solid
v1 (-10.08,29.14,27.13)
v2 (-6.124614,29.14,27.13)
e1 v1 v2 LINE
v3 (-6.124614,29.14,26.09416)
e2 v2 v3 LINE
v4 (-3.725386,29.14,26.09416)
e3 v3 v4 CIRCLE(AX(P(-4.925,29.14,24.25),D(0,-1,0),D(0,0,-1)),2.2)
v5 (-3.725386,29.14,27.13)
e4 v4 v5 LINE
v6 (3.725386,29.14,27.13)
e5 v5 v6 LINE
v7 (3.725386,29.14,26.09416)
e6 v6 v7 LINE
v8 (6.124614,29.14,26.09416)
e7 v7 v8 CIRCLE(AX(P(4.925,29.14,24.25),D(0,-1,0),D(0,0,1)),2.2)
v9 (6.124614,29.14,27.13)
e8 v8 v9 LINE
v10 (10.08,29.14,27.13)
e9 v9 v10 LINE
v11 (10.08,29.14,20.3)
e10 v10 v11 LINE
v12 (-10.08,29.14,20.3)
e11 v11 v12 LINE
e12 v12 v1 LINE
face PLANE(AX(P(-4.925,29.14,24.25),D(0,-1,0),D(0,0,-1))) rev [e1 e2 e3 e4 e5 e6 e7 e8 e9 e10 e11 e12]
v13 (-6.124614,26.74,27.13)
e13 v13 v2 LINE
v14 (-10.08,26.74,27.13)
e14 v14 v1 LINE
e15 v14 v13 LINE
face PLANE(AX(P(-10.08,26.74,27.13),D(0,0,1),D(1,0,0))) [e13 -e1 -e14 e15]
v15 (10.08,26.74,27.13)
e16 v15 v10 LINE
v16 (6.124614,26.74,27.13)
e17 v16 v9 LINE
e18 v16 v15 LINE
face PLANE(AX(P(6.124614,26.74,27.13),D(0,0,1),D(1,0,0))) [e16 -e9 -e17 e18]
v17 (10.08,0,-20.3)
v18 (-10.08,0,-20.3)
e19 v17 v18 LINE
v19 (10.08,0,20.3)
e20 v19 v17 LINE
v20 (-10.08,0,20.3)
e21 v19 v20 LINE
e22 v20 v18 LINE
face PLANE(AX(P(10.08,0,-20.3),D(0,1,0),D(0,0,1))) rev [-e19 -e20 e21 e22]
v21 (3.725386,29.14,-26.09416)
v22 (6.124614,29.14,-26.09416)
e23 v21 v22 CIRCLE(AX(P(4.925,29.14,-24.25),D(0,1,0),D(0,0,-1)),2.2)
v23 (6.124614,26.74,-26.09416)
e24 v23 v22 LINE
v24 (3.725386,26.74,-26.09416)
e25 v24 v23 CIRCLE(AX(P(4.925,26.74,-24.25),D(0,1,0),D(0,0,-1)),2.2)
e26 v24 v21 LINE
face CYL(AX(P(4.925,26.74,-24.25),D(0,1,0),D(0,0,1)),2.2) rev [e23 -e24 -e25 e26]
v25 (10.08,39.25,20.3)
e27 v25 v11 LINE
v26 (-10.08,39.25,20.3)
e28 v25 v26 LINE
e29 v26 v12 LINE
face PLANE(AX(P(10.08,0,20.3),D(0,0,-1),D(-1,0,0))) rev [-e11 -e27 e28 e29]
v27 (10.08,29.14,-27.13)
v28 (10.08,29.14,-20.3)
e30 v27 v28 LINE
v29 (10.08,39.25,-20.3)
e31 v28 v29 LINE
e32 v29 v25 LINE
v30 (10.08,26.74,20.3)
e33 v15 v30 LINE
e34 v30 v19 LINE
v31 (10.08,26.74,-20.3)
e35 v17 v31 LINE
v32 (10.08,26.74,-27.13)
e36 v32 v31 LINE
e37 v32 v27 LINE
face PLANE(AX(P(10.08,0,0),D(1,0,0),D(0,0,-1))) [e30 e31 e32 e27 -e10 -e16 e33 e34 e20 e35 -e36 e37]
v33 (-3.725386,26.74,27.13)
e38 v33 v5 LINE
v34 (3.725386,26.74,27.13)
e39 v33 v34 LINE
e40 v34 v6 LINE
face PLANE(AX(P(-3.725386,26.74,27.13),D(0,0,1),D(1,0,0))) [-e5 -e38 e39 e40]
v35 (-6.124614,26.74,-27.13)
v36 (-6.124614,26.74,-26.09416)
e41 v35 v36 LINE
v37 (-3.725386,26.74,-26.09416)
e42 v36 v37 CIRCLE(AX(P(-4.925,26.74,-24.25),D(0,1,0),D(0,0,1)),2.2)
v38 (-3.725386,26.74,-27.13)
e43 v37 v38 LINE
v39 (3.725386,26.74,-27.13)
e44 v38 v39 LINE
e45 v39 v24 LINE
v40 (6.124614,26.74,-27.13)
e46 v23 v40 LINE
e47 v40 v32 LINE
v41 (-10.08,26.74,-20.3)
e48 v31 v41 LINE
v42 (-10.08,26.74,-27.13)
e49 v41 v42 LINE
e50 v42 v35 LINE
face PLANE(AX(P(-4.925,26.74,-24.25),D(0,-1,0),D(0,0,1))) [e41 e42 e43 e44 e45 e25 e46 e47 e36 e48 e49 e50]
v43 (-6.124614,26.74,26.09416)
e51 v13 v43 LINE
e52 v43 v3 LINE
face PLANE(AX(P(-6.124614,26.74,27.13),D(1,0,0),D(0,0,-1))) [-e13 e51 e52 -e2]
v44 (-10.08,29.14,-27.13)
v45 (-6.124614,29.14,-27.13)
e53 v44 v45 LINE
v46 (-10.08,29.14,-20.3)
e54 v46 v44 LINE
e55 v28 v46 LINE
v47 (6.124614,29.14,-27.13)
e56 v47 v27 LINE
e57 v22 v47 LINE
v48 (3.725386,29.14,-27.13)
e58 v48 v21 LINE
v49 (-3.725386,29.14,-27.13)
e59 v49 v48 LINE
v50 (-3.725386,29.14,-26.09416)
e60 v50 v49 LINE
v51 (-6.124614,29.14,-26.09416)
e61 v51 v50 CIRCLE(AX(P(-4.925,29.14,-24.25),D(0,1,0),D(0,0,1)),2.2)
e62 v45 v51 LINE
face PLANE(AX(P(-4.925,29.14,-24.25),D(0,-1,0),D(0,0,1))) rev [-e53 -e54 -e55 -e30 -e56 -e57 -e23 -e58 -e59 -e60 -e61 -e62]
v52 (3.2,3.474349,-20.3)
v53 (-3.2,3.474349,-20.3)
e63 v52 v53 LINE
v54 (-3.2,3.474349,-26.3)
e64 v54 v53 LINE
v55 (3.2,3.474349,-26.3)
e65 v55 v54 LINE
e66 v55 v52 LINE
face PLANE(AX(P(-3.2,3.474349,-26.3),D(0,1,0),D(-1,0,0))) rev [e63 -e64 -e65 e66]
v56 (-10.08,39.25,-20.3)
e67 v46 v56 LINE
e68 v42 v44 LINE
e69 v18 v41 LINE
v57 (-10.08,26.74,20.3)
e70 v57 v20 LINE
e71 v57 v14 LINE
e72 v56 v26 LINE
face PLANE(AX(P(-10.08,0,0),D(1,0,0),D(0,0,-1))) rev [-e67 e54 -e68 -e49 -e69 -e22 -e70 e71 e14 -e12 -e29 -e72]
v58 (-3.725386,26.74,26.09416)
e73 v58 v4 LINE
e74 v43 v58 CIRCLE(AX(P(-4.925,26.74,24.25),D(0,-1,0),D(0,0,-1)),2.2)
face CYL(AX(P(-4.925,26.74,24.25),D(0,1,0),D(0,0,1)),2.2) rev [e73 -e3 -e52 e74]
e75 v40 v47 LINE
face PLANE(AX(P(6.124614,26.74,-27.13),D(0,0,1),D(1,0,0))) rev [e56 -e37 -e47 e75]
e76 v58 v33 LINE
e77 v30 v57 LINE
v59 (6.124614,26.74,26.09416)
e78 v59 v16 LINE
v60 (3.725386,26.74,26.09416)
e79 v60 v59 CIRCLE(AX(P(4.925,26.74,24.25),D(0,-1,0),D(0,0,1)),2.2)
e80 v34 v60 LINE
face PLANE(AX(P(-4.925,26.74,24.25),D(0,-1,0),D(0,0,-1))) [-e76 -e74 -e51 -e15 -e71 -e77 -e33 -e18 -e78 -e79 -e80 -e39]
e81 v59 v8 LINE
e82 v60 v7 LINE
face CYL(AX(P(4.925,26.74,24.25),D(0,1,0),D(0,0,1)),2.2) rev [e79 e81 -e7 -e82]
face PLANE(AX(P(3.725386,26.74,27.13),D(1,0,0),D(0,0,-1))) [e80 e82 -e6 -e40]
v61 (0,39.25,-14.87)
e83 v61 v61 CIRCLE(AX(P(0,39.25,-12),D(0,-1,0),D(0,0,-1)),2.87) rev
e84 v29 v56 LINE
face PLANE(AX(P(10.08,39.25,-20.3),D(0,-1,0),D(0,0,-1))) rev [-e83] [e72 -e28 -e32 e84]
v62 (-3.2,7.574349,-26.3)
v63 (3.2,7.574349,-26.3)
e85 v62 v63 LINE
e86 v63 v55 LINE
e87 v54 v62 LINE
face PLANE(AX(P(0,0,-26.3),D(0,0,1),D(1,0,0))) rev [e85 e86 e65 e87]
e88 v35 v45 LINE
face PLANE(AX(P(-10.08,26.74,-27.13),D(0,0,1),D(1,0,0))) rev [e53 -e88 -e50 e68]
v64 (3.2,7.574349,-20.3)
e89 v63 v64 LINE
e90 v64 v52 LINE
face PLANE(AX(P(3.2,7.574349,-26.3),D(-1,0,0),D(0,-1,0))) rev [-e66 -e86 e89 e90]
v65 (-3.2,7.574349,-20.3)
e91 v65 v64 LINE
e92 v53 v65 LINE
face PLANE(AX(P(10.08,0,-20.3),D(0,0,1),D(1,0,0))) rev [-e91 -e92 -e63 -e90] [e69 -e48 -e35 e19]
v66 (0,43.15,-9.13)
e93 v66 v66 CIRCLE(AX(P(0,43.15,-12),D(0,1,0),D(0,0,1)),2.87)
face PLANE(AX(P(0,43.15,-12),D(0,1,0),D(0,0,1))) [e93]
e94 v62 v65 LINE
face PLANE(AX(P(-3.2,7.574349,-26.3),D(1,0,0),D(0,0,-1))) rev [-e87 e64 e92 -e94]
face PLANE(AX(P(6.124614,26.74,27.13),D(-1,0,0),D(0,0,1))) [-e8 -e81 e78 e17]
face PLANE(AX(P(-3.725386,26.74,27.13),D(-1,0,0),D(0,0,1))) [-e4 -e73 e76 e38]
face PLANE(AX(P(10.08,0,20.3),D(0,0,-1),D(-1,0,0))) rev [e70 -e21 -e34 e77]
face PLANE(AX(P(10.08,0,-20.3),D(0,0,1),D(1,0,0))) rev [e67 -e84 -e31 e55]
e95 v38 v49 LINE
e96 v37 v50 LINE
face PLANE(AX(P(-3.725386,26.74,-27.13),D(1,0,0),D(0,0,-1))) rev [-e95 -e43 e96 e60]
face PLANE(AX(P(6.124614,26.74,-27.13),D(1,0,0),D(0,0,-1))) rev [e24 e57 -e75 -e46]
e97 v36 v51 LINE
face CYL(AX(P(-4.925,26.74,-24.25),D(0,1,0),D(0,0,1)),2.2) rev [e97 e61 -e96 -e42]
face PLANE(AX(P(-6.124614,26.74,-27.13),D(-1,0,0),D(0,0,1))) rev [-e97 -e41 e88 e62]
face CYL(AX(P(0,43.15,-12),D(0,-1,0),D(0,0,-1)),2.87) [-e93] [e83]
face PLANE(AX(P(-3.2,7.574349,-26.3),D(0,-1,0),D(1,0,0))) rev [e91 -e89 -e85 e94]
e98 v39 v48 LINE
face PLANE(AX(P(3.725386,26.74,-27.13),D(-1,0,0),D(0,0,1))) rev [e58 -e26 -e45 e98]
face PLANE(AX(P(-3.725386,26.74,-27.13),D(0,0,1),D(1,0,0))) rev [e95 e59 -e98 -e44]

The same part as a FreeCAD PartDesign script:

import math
import FreeCAD as App
import Part
import Sketcher


def add_polygon(sketch, points):
    """Adds a closed chain of lines whose ends are joined by coincident constraints."""
    first, n = sketch.GeometryCount, len(points)
    for a, b in zip(points, points[1:] + points[:1]):
        sketch.addGeometry(Part.LineSegment(App.Vector(*a, 0), App.Vector(*b, 0)), False)
    for i in range(n):
        sketch.addConstraint(Sketcher.Constraint("Coincident", first + i, 2, first + (i + 1) % n, 1))

doc = App.newDocument("Part")
params = doc.addObject("Spreadsheet::Sheet", "Params")
for row, (alias, value) in enumerate([
    ("sketch1_height", "40.6 mm"),
    ("sketch1_width", "39.25 mm"),
    ("pad1_length", "20.16 mm"),
    ("sketch2_radius", "2.2 mm"),
    ("sketch2_width", "20.16 mm"),
    ("sketch2_height", "6.83 mm"),
    ("pad2_length", "2.4 mm"),
    ("sketch3_width", "6.4 mm"),
    ("sketch3_height", "4.1 mm"),
    ("pad3_length", "6 mm"),
    ("sketch4_diameter", "5.74 mm"),
    ("pad4_length", "3.9 mm"),
], start=1):
    params.set(f"A{row}", alias)
    params.set(f"B{row}", "=" + value)
    params.setAlias(f"B{row}", alias)

body = doc.addObject("PartDesign::Body", "Body")

# Sketch on YZ plane
sketch1 = doc.addObject("Sketcher::SketchObject", "Sketch")
body.addObject(sketch1)
sketch1.AttachmentSupport = (doc.YZ_Plane, [""])
sketch1.MapMode = "FlatFace"
add_polygon(sketch1, [(39.25, 20.3), (0, 20.3), (0, -20.3), (39.25, -20.3)])  # lines 0-3
sketch1.addConstraint([
    Sketcher.Constraint("Horizontal", 0),
    Sketcher.Constraint("Vertical", 1),
    Sketcher.Constraint("Horizontal", 2),
    Sketcher.Constraint("Vertical", 3),
    Sketcher.Constraint("Symmetric", 0, 2, 1, 2, -1, 1),
    Sketcher.Constraint("DistanceY", 1, 2, 1, 1, 40.6),
    Sketcher.Constraint("DistanceX", 0, 2, 0, 1, 39.25),
])
sketch1.setExpression("Constraints[9]", "Params.sketch1_height")
sketch1.setExpression("Constraints[10]", "Params.sketch1_width")
pad1 = doc.addObject("PartDesign::Pad", "Pad")
body.addObject(pad1)
pad1.Profile = sketch1
pad1.setExpression("Length", "Params.pad1_length")
pad1.Midplane = True

# Sketch on XZ plane
sketch2 = doc.addObject("Sketcher::SketchObject", "Sketch001")
body.addObject(sketch2)
sketch2.AttachmentSupport = (doc.XZ_Plane, [""])
sketch2.MapMode = "FlatFace"
sketch2.AttachmentOffset = App.Placement(App.Vector(0, 0, -29.14), App.Rotation())
sketch2.addGeometry([
    Part.LineSegment(App.Vector(10.08, 20.3, 0), App.Vector(-10.08, 20.3, 0)),  # 0
    Part.LineSegment(App.Vector(-10.08, 20.3, 0), App.Vector(-10.08, 27.13, 0)),  # 1
    Part.LineSegment(App.Vector(-10.08, 27.13, 0), App.Vector(-6.124614, 27.13, 0)),  # 2
    Part.LineSegment(App.Vector(-6.124614, 27.13, 0), App.Vector(-6.124614, 26.09416, 0)),  # 3
    Part.ArcOfCircle(Part.Circle(App.Vector(-4.925, 24.25, 0), App.Vector(0, 0, 1), 2.2), math.radians(123.043726), math.radians(416.956274)),  # 4
    Part.LineSegment(App.Vector(-3.725386, 26.09416, 0), App.Vector(-3.725386, 27.13, 0)),  # 5
    Part.LineSegment(App.Vector(-3.725386, 27.13, 0), App.Vector(3.725386, 27.13, 0)),  # 6
    Part.LineSegment(App.Vector(3.725386, 27.13, 0), App.Vector(3.725386, 26.09416, 0)),  # 7
    Part.ArcOfCircle(Part.Circle(App.Vector(4.925, 24.25, 0), App.Vector(0, 0, 1), 2.2), math.radians(123.043726), math.radians(416.956274)),  # 8
    Part.LineSegment(App.Vector(6.124614, 26.09416, 0), App.Vector(6.124614, 27.13, 0)),  # 9
    Part.LineSegment(App.Vector(6.124614, 27.13, 0), App.Vector(10.08, 27.13, 0)),  # 10
    Part.LineSegment(App.Vector(10.08, 27.13, 0), App.Vector(10.08, 20.3, 0)),  # 11
], False)
sketch2.addConstraint([
    Sketcher.Constraint("Coincident", 0, 2, 1, 1),
    Sketcher.Constraint("Coincident", 1, 2, 2, 1),
    Sketcher.Constraint("Coincident", 2, 2, 3, 1),
    Sketcher.Constraint("Coincident", 3, 2, 4, 1),
    Sketcher.Constraint("Coincident", 4, 2, 5, 1),
    Sketcher.Constraint("Coincident", 5, 2, 6, 1),
    Sketcher.Constraint("Coincident", 6, 2, 7, 1),
    Sketcher.Constraint("Coincident", 7, 2, 8, 1),
    Sketcher.Constraint("Coincident", 8, 2, 9, 1),
    Sketcher.Constraint("Coincident", 9, 2, 10, 1),
    Sketcher.Constraint("Coincident", 10, 2, 11, 1),
    Sketcher.Constraint("Coincident", 11, 2, 0, 1),
    Sketcher.Constraint("Horizontal", 0),
    Sketcher.Constraint("Vertical", 1),
    Sketcher.Constraint("Horizontal", 2),
    Sketcher.Constraint("Vertical", 3),
    Sketcher.Constraint("Vertical", 5),
    Sketcher.Constraint("Horizontal", 6),
    Sketcher.Constraint("Vertical", 7),
    Sketcher.Constraint("Vertical", 9),
    Sketcher.Constraint("Horizontal", 10),
    Sketcher.Constraint("Vertical", 11),
    Sketcher.Constraint("Equal", 4, 8),
    Sketcher.Constraint("Symmetric", 4, 3, 8, 3, -2),
    Sketcher.Constraint("Symmetric", 2, 2, 9, 2, -2),
    Sketcher.Constraint("Horizontal", 3, 2, 4, 2),
    Sketcher.Constraint("Horizontal", 2, 2, 5, 2),
    Sketcher.Constraint("Horizontal", 4, 2, 7, 2),
    Sketcher.Constraint("Equal", 2, 10),
    Sketcher.Constraint("Radius", 4, 2.2),
    Sketcher.Constraint("DistanceX", 0, 2, 0, 1, 20.16),
    Sketcher.Constraint("DistanceY", 1, 1, 1, 2, 6.83),
    Sketcher.Constraint("DistanceY", -1, 1, 0, 2, 20.3),
    Sketcher.Constraint("DistanceY", -1, 1, 4, 3, 24.25),
    Sketcher.Constraint("DistanceX", 4, 3, 8, 3, 9.85),
    Sketcher.Constraint("DistanceY", 3, 2, 3, 1, 1.03584),
])
sketch2.setExpression("Constraints[29]", "Params.sketch2_radius")
sketch2.setExpression("Constraints[30]", "Params.sketch2_width")
sketch2.setExpression("Constraints[31]", "Params.sketch2_height")
pad2 = doc.addObject("PartDesign::Pad", "Pad001")
body.addObject(pad2)
pad2.Profile = sketch2
pad2.setExpression("Length", "Params.pad2_length")
doc.recompute()

mirrored = doc.addObject("PartDesign::Mirrored", "Mirrored")
body.addObject(mirrored)
mirrored.Originals = [pad2]
mirrored.MirrorPlane = (doc.XY_Plane, [""])
body.Tip = mirrored

# Sketch on XY plane
sketch3 = doc.addObject("Sketcher::SketchObject", "Sketch002")
body.addObject(sketch3)
sketch3.AttachmentSupport = (doc.XY_Plane, [""])
sketch3.MapMode = "FlatFace"
sketch3.AttachmentOffset = App.Placement(App.Vector(0, 0, -20.3), App.Rotation())
add_polygon(sketch3, [(3.2, 7.574349), (3.2, 3.474349), (-3.2, 3.474349), (-3.2, 7.574349)])  # lines 0-3
sketch3.addConstraint([
    Sketcher.Constraint("Vertical", 0),
    Sketcher.Constraint("Horizontal", 1),
    Sketcher.Constraint("Vertical", 2),
    Sketcher.Constraint("Horizontal", 3),
    Sketcher.Constraint("DistanceX", 1, 2, 1, 1, 6.4),
    Sketcher.Constraint("DistanceY", 0, 2, 0, 1, 4.1),
    Sketcher.Constraint("DistanceX", -1, 1, 0, 2, 3.2),
    Sketcher.Constraint("DistanceY", -1, 1, 0, 2, 3.474349),
])
sketch3.setExpression("Constraints[8]", "Params.sketch3_width")
sketch3.setExpression("Constraints[9]", "Params.sketch3_height")
pad3 = doc.addObject("PartDesign::Pad", "Pad002")
body.addObject(pad3)
pad3.Profile = sketch3
pad3.setExpression("Length", "Params.pad3_length")
pad3.Reversed = True

# Sketch on XZ plane
sketch4 = doc.addObject("Sketcher::SketchObject", "Sketch003")
body.addObject(sketch4)
sketch4.AttachmentSupport = (doc.XZ_Plane, [""])
sketch4.MapMode = "FlatFace"
sketch4.AttachmentOffset = App.Placement(App.Vector(0, 0, -39.25), App.Rotation())
sketch4.addGeometry(Part.Circle(App.Vector(0, -12, 0), App.Vector(0, 0, 1), 2.87), False)
sketch4.addConstraint([
    Sketcher.Constraint("PointOnObject", 0, 3, -2),
    Sketcher.Constraint("Diameter", 0, 5.74),
    Sketcher.Constraint("DistanceY", 0, 3, -1, 1, 12.0),
])
sketch4.setExpression("Constraints[1]", "Params.sketch4_diameter")
pad4 = doc.addObject("PartDesign::Pad", "Pad003")
body.addObject(pad4)
pad4.Profile = sketch4
pad4.setExpression("Length", "Params.pad4_length")
pad4.Reversed = True

doc.recompute()
